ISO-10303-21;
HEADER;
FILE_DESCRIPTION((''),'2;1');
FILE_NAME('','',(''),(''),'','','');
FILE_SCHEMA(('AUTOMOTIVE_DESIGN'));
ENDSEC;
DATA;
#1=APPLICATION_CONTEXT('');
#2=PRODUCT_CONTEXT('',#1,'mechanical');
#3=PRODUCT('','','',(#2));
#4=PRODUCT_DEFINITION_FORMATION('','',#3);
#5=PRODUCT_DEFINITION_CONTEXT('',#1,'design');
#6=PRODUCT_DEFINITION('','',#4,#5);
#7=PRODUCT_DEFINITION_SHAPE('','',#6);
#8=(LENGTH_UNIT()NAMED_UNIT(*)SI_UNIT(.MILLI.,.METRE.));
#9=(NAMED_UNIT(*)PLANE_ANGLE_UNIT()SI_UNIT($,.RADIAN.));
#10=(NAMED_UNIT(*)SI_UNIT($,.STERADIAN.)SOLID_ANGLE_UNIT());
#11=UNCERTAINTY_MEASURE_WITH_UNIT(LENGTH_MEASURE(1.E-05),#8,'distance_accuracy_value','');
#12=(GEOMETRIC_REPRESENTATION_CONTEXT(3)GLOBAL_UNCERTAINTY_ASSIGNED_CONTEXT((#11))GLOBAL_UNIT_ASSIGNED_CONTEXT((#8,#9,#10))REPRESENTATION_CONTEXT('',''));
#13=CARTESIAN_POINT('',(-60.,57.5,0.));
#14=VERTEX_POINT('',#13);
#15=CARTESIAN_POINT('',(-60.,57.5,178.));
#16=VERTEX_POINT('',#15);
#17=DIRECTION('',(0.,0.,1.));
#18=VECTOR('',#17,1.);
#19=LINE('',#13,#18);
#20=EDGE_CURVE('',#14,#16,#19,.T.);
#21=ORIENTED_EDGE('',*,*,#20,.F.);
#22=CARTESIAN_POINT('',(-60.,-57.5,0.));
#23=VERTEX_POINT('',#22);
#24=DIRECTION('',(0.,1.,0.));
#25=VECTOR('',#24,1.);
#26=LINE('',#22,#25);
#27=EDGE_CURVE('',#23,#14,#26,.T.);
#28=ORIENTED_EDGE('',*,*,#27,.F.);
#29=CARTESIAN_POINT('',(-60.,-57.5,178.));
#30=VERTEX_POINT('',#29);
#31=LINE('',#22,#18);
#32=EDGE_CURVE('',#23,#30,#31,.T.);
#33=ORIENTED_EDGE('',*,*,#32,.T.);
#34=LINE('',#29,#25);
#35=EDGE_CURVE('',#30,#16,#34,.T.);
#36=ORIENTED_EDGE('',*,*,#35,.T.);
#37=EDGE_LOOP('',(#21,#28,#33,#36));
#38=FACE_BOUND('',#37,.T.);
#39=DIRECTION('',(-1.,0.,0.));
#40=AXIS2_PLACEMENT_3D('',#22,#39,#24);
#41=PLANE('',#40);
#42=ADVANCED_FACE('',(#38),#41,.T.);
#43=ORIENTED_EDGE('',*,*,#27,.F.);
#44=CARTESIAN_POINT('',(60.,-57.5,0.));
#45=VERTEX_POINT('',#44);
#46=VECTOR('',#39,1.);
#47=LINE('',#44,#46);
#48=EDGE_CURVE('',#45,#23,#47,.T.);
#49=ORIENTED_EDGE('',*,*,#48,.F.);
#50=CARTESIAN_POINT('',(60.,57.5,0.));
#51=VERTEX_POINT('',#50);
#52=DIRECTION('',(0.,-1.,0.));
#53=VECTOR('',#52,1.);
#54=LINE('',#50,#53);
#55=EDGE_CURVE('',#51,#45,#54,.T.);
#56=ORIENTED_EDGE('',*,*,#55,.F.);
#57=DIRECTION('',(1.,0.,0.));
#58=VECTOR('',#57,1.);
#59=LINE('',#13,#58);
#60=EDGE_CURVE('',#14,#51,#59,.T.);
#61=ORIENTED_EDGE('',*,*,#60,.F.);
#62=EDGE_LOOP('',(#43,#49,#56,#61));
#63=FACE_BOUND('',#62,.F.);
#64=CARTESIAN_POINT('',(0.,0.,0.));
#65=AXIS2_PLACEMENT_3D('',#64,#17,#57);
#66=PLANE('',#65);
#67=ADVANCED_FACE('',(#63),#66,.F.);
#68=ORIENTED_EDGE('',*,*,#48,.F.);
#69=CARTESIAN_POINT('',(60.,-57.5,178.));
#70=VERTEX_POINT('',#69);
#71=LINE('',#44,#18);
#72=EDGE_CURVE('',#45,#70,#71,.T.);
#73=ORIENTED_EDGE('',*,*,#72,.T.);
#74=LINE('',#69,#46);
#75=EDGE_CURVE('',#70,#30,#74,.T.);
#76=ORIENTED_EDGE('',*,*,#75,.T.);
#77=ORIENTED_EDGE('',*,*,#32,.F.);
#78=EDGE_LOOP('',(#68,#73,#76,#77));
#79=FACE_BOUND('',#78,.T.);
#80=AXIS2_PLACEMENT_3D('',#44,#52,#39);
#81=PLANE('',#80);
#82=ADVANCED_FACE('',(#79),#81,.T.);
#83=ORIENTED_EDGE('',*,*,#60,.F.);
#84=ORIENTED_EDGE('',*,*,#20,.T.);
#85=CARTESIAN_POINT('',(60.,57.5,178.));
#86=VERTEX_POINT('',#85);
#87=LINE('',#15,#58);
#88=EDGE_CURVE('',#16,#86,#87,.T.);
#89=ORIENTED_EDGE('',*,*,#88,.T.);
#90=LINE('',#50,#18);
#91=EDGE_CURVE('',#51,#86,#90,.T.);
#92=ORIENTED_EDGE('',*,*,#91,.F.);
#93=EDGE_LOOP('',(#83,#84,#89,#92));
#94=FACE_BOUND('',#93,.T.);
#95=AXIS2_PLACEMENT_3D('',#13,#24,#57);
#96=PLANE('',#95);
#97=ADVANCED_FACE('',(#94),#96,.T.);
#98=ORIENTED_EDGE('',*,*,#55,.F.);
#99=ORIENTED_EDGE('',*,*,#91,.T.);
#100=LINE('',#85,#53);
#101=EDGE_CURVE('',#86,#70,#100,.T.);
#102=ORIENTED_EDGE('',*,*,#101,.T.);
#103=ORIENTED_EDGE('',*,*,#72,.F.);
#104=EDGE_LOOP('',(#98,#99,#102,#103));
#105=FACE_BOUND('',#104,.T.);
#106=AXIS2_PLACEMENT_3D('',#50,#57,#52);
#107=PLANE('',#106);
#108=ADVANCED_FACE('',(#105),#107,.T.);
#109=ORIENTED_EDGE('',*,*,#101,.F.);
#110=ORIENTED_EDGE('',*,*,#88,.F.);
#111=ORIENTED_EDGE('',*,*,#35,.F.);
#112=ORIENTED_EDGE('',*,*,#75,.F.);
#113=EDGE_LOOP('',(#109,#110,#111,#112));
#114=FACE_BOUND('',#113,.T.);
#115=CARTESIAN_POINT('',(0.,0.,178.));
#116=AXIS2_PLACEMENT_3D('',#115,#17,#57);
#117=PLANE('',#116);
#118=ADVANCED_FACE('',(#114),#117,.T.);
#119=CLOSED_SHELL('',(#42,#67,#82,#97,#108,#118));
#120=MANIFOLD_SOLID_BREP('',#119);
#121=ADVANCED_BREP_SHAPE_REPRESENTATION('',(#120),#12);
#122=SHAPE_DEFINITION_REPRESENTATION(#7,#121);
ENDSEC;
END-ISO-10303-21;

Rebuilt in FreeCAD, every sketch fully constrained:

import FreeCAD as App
import Part
import Sketcher

V = App.Vector
Q = App.Units.Quantity


def add_polygon(sketch, points):
    """Adds a closed chain of lines whose ends are joined by coincident constraints."""
    first, n = sketch.GeometryCount, len(points)
    for a, b in zip(points, points[1:] + points[:1]):
        sketch.addGeometry(Part.LineSegment(App.Vector(*a, 0), App.Vector(*b, 0)), False)
    for i in range(n):
        sketch.addConstraint(Sketcher.Constraint("Coincident", first + i, 2, first + (i + 1) % n, 1))

doc = App.newDocument("Part")
body = doc.addObject("PartDesign::Body", "Body")

sketch1 = doc.addObject("Sketcher::SketchObject", "Sketch")
body.addObject(sketch1)
sketch1.AttachmentSupport = (doc.XY_Plane, [""])
sketch1.MapMode = "FlatFace"
add_polygon(sketch1, [(-60, -58), (60, -58), (60, 58), (-60, 58)])
sketch1.addConstraint(Sketcher.Constraint("Horizontal", 0))
sketch1.addConstraint(Sketcher.Constraint("Vertical", 1))
sketch1.addConstraint(Sketcher.Constraint("Horizontal", 2))
sketch1.addConstraint(Sketcher.Constraint("Vertical", 3))
sketch1.addConstraint(Sketcher.Constraint("Symmetric", 0, 2, 2, 2, -1, 1))
sketch1.addConstraint(Sketcher.Constraint("DistanceX", 0, 1, 0, 2, Q("120 mm")))
sketch1.addConstraint(Sketcher.Constraint("DistanceY", 1, 1, 1, 2, Q("115 mm")))
pad1 = doc.addObject("PartDesign::Pad", "Pad")
body.addObject(pad1)
pad1.Profile = sketch1
pad1.Length = 178

doc.recompute()
